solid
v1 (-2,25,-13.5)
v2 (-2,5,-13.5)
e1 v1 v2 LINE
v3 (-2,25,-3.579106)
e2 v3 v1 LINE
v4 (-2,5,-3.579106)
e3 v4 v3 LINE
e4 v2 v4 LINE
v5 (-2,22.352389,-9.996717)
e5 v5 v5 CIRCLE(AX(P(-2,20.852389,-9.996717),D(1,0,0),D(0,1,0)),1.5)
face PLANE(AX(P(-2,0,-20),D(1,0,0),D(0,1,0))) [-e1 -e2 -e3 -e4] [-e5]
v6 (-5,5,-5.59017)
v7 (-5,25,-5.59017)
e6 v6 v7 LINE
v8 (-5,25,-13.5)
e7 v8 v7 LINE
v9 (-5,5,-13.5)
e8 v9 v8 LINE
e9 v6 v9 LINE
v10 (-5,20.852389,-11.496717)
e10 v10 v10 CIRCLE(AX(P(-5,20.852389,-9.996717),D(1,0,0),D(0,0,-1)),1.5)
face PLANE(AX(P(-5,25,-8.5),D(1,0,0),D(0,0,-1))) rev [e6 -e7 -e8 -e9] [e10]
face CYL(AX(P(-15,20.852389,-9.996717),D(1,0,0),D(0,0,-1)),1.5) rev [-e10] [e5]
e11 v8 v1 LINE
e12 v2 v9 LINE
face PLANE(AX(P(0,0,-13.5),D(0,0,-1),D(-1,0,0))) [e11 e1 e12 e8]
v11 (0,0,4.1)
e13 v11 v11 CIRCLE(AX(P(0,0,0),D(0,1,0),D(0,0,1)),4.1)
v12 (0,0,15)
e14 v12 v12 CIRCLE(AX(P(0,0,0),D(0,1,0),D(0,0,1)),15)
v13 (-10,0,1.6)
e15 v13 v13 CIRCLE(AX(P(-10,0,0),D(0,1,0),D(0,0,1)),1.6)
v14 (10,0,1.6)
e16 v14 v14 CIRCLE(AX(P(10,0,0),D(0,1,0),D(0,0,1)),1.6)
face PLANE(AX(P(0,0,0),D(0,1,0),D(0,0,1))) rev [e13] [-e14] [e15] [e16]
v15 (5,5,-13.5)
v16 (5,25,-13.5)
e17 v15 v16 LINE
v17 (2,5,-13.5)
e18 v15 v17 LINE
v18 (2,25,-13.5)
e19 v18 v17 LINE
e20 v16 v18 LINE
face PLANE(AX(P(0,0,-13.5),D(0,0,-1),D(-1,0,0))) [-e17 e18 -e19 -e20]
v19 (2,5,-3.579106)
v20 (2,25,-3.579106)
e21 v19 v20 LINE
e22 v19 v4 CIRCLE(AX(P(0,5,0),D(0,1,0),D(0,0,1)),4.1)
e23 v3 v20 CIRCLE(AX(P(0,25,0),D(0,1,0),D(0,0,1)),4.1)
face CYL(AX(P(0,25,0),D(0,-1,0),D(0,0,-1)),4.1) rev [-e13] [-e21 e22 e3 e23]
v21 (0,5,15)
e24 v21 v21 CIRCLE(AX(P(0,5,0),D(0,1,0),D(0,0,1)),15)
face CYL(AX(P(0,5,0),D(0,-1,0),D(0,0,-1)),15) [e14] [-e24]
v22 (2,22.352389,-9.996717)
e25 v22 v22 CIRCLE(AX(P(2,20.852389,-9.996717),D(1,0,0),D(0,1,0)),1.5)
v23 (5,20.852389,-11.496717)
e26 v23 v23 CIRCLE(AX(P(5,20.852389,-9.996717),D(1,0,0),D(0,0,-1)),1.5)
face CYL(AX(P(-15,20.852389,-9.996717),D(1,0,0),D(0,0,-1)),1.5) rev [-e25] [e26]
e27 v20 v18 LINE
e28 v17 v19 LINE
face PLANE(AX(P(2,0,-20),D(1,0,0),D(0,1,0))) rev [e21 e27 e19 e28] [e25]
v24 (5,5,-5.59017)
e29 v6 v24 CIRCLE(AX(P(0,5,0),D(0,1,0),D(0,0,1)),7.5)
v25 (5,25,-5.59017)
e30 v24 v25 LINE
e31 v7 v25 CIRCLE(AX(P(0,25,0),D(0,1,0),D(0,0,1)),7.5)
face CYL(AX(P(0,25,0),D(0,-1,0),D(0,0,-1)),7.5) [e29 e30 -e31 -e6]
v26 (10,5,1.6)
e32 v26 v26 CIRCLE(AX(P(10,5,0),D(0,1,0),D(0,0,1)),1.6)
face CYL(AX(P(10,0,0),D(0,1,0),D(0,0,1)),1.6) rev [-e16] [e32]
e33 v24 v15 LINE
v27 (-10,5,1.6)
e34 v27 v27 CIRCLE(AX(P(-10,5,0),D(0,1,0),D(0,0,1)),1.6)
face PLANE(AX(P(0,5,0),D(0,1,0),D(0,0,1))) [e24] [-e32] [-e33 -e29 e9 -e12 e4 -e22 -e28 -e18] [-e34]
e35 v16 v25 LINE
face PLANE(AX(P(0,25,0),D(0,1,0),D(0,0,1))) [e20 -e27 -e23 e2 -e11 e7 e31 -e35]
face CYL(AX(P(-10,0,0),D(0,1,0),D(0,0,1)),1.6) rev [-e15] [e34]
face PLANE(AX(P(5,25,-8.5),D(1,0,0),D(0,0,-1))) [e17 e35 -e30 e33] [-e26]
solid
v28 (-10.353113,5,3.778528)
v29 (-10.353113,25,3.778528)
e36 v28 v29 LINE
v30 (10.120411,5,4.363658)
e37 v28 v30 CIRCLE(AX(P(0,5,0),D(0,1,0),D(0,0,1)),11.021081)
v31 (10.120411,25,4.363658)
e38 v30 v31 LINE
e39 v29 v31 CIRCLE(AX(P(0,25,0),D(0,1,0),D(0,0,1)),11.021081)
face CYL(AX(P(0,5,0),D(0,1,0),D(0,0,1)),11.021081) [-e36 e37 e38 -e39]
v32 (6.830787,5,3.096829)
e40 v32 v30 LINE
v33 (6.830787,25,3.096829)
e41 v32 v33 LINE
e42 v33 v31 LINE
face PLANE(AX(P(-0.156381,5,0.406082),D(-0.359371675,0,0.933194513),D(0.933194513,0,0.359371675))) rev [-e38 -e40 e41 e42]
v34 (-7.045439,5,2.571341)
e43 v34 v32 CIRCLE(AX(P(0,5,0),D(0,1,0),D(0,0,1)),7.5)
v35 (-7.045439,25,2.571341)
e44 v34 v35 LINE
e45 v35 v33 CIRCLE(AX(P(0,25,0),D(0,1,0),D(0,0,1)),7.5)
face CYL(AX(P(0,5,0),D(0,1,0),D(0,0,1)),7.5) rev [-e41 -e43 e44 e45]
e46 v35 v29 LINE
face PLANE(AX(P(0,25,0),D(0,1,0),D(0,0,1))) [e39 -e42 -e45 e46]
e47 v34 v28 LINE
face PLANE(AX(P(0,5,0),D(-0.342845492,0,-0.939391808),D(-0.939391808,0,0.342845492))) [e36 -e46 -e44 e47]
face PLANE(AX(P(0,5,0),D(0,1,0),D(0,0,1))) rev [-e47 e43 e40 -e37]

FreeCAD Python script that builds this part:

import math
import FreeCAD as App
import Part
import Sketcher
Q = App.Units.Quantity


def add_polygon(sketch, points):
    """Adds a closed chain of lines whose ends are joined by coincident constraints."""
    first, n = sketch.GeometryCount, len(points)
    for a, b in zip(points, points[1:] + points[:1]):
        sketch.addGeometry(Part.LineSegment(App.Vector(*a, 0), App.Vector(*b, 0)), False)
    for i in range(n):
        sketch.addConstraint(Sketcher.Constraint("Coincident", first + i, 2, first + (i + 1) % n, 1))

doc = App.newDocument("Part")
body = doc.addObject("PartDesign::Body", "Body")

# Sketch on XZ plane
sketch1 = body.newObject("Sketcher::SketchObject", "Sketch")
sketch1.AttachmentSupport = (doc.getObject("XZ_Plane"), [""])
sketch1.MapMode = "FlatFace"
sketch1.addGeometry(Part.Circle(App.Vector(0, 0, 0), App.Vector(0, 0, 1), 15), False)
sketch1.addConstraint([
    Sketcher.Constraint("Coincident", 0, 3, -1, 1),
    Sketcher.Constraint("Diameter", 0, Q("30 mm")),
])
pad1 = body.newObject("PartDesign::Pad", "Pad")
pad1.Profile = sketch1
pad1.Length = 5
pad1.Reversed = True

# Sketch on XZ plane
sketch2 = body.newObject("Sketcher::SketchObject", "Sketch001")
sketch2.AttachmentSupport = (doc.getObject("XZ_Plane"), [""])
sketch2.MapMode = "FlatFace"
sketch2.AttachmentOffset = App.Placement(App.Vector(0, 0, -5), App.Rotation())
sketch2.addGeometry([
    Part.Circle(App.Vector(0, 0, 0), App.Vector(0, 0, 1), 7.5),
    Part.Circle(App.Vector(0, 0, 0), App.Vector(0, 0, 1), 4.1),
], False)
sketch2.addConstraint([
    Sketcher.Constraint("Coincident", 0, 3, -1, 1),
    Sketcher.Constraint("Coincident", 1, 3, -1, 1),
    Sketcher.Constraint("Diameter", 0, Q("15 mm")),
    Sketcher.Constraint("Diameter", 1, Q("8.2 mm")),
])
pad2 = body.newObject("PartDesign::Pad", "Pad001")
pad2.Profile = sketch2
pad2.Length = 20
pad2.Reversed = True

# Sketch on XZ plane
sketch3 = body.newObject("Sketcher::SketchObject", "Sketch002")
sketch3.AttachmentSupport = (doc.getObject("XZ_Plane"), [""])
sketch3.MapMode = "FlatFace"
sketch3.AttachmentOffset = App.Placement(App.Vector(0, 0, -5), App.Rotation())
sketch3.addGeometry([
    Part.Circle(App.Vector(10, 0, 0), App.Vector(0, 0, 1), 1.6),
    Part.Circle(App.Vector(-10, 0, 0), App.Vector(0, 0, 1), 1.6),
], False)
sketch3.addConstraint([
    Sketcher.Constraint("Equal", 0, 1),
    Sketcher.Constraint("Symmetric", 0, 3, 1, 3, -1, 1),
    Sketcher.Constraint("PointOnObject", 0, 3, -1),
    Sketcher.Constraint("Diameter", 0, Q("3.2 mm")),
    Sketcher.Constraint("DistanceX", -1, 1, 0, 3, Q("10 mm")),
])
pocket1 = body.newObject("PartDesign::Pocket", "Pocket")
pocket1.Profile = sketch3
pocket1.Type = "ThroughAll"
pocket1.Reversed = True

# Sketch on XZ plane
sketch4 = body.newObject("Sketcher::SketchObject", "Sketch003")
sketch4.AttachmentSupport = (doc.getObject("XZ_Plane"), [""])
sketch4.MapMode = "FlatFace"
sketch4.AttachmentOffset = App.Placement(App.Vector(0, 0, -5), App.Rotation())
sketch4.addGeometry(Part.Circle(App.Vector(0, 0, 0), App.Vector(0, 0, 1), 4.1), False)
sketch4.addConstraint([
    Sketcher.Constraint("Coincident", 0, 3, -1, 1),
    Sketcher.Constraint("Diameter", 0, Q("8.2 mm")),
])
pocket2 = body.newObject("PartDesign::Pocket", "Pocket001")
pocket2.Profile = sketch4
pocket2.Type = "ThroughAll"
pocket2.Reversed = True

# Sketch on XY plane
sketch5 = body.newObject("Sketcher::SketchObject", "Sketch004")
sketch5.AttachmentSupport = (doc.getObject("XY_Plane"), [""])
sketch5.MapMode = "FlatFace"
add_polygon(sketch5, [(2, 30), (-2, 30), (-2, 5), (2, 5)])  # lines 0-3
sketch5.addConstraint([
    Sketcher.Constraint("Horizontal", 0),
    Sketcher.Constraint("Vertical", 1),
    Sketcher.Constraint("Horizontal", 2),
    Sketcher.Constraint("Vertical", 3),
    Sketcher.Constraint("DistanceX", 0, 2, 0, 1, Q("4 mm")),
    Sketcher.Constraint("DistanceY", 1, 2, 1, 1, Q("25 mm")),
    Sketcher.Constraint("DistanceX", 0, 2, -1, 1, Q("2 mm")),
    Sketcher.Constraint("DistanceY", -1, 1, 0, 2, Q("30 mm")),
])
pocket3 = body.newObject("PartDesign::Pocket", "Pocket002")
pocket3.Profile = sketch5
pocket3.Length = 20

# Sketch on XY plane
sketch6 = body.newObject("Sketcher::SketchObject", "Sketch005")
sketch6.AttachmentSupport = (doc.getObject("XY_Plane"), [""])
sketch6.MapMode = "FlatFace"
sketch6.AttachmentOffset = App.Placement(App.Vector(0, 0, -8.5), App.Rotation())
add_polygon(sketch6, [(5, 25), (2, 25), (2, 4.7), (5, 4.7)])  # lines 0-3
add_polygon(sketch6, [(-2, 25), (-5, 25), (-5, 4), (-2, 4)])  # lines 4-7
sketch6.addConstraint([
    Sketcher.Constraint("Horizontal", 0),
    Sketcher.Constraint("Vertical", 1),
    Sketcher.Constraint("Horizontal", 2),
    Sketcher.Constraint("Vertical", 3),
    Sketcher.Constraint("Horizontal", 4),
    Sketcher.Constraint("Vertical", 5),
    Sketcher.Constraint("Horizontal", 6),
    Sketcher.Constraint("Vertical", 7),
    Sketcher.Constraint("Symmetric", 3, 2, 4, 2, -2),
    Sketcher.Constraint("Equal", 2, 4),
    Sketcher.Constraint("DistanceX", 0, 2, 0, 1, Q("3 mm")),
    Sketcher.Constraint("DistanceX", -1, 1, 0, 2, Q("2 mm")),
    Sketcher.Constraint("DistanceY", -1, 1, 0, 2, Q("25 mm")),
    Sketcher.Constraint("DistanceY", 1, 2, 1, 1, Q("20.295983 mm")),
    Sketcher.Constraint("DistanceY", 5, 2, 5, 1, Q("20.977963 mm")),
])
pad3 = body.newObject("PartDesign::Pad", "Pad002")
pad3.Profile = sketch6
pad3.Type = "TwoLengths"
pad3.Length = 3
pad3.Length2 = 5

# Sketch on YZ plane
sketch7 = body.newObject("Sketcher::SketchObject", "Sketch006")
sketch7.AttachmentSupport = (doc.getObject("YZ_Plane"), [""])
sketch7.MapMode = "FlatFace"
sketch7.AttachmentOffset = App.Placement(App.Vector(0, 0, 5), App.Rotation())
sketch7.addGeometry(Part.Circle(App.Vector(20.9, -10, 0), App.Vector(0, 0, 1), 1.5), False)
sketch7.addConstraint([
    Sketcher.Constraint("Diameter", 0, Q("3 mm")),
    Sketcher.Constraint("DistanceX", -1, 1, 0, 3, Q("20.852389 mm")),
    Sketcher.Constraint("DistanceY", 0, 3, -1, 1, Q("9.996717 mm")),
])
pocket4 = body.newObject("PartDesign::Pocket", "Pocket003")
pocket4.Profile = sketch7
pocket4.Type = "ThroughAll"
body2 = doc.addObject("PartDesign::Body", "Body001")

# Sketch on XZ plane
sketch8 = body2.newObject("Sketcher::SketchObject", "Sketch007")
sketch8.AttachmentSupport = (doc.getObject("XZ_Plane001"), [""])
sketch8.MapMode = "FlatFace"
sketch8.AttachmentOffset = App.Placement(App.Vector(0, 0, -25), App.Rotation())
sketch8.addGeometry([
    Part.ArcOfCircle(Part.Circle(App.Vector(0, 0, 0), App.Vector(0, 0, 1), 7.5), math.radians(24), math.radians(160)),
    Part.LineSegment(App.Vector(-7, 2.6, 0), App.Vector(-10.4, 3.8, 0)),
    Part.ArcOfCircle(Part.Circle(App.Vector(0, 0, 0), App.Vector(0, 0, 1), 11), math.radians(23), math.radians(160)),
    Part.LineSegment(App.Vector(10.1, 4.4, 0), App.Vector(6.8, 3.1, 0)),
], False)
sketch8.addConstraint([
    Sketcher.Constraint("Coincident", 0, 2, 1, 1),
    Sketcher.Constraint("Coincident", 1, 2, 2, 2),
    Sketcher.Constraint("Coincident", 2, 1, 3, 1),
    Sketcher.Constraint("Coincident", 3, 2, 0, 1),
    Sketcher.Constraint("Coincident", 0, 3, -1, 1),
    Sketcher.Constraint("Coincident", 2, 3, -1, 1),
    Sketcher.Constraint("Radius", 0, Q("7.5 mm")),
    Sketcher.Constraint("Radius", 2, Q("11.021081 mm")),
    Sketcher.Constraint("DistanceX", 1, 2, 3, 2, Q("17.1839 mm")),
    Sketcher.Constraint("DistanceY", 3, 2, 1, 2, Q("0.681699 mm")),
    Sketcher.Constraint("Distance", 3, Q("3.525121 mm")),
    Sketcher.Constraint("DistanceX", 0, 2, -1, 1, Q("7.045439 mm")),
])
pad4 = body2.newObject("PartDesign::Pad", "Pad003")
pad4.Profile = sketch8
pad4.Length = 20

doc.recompute()
